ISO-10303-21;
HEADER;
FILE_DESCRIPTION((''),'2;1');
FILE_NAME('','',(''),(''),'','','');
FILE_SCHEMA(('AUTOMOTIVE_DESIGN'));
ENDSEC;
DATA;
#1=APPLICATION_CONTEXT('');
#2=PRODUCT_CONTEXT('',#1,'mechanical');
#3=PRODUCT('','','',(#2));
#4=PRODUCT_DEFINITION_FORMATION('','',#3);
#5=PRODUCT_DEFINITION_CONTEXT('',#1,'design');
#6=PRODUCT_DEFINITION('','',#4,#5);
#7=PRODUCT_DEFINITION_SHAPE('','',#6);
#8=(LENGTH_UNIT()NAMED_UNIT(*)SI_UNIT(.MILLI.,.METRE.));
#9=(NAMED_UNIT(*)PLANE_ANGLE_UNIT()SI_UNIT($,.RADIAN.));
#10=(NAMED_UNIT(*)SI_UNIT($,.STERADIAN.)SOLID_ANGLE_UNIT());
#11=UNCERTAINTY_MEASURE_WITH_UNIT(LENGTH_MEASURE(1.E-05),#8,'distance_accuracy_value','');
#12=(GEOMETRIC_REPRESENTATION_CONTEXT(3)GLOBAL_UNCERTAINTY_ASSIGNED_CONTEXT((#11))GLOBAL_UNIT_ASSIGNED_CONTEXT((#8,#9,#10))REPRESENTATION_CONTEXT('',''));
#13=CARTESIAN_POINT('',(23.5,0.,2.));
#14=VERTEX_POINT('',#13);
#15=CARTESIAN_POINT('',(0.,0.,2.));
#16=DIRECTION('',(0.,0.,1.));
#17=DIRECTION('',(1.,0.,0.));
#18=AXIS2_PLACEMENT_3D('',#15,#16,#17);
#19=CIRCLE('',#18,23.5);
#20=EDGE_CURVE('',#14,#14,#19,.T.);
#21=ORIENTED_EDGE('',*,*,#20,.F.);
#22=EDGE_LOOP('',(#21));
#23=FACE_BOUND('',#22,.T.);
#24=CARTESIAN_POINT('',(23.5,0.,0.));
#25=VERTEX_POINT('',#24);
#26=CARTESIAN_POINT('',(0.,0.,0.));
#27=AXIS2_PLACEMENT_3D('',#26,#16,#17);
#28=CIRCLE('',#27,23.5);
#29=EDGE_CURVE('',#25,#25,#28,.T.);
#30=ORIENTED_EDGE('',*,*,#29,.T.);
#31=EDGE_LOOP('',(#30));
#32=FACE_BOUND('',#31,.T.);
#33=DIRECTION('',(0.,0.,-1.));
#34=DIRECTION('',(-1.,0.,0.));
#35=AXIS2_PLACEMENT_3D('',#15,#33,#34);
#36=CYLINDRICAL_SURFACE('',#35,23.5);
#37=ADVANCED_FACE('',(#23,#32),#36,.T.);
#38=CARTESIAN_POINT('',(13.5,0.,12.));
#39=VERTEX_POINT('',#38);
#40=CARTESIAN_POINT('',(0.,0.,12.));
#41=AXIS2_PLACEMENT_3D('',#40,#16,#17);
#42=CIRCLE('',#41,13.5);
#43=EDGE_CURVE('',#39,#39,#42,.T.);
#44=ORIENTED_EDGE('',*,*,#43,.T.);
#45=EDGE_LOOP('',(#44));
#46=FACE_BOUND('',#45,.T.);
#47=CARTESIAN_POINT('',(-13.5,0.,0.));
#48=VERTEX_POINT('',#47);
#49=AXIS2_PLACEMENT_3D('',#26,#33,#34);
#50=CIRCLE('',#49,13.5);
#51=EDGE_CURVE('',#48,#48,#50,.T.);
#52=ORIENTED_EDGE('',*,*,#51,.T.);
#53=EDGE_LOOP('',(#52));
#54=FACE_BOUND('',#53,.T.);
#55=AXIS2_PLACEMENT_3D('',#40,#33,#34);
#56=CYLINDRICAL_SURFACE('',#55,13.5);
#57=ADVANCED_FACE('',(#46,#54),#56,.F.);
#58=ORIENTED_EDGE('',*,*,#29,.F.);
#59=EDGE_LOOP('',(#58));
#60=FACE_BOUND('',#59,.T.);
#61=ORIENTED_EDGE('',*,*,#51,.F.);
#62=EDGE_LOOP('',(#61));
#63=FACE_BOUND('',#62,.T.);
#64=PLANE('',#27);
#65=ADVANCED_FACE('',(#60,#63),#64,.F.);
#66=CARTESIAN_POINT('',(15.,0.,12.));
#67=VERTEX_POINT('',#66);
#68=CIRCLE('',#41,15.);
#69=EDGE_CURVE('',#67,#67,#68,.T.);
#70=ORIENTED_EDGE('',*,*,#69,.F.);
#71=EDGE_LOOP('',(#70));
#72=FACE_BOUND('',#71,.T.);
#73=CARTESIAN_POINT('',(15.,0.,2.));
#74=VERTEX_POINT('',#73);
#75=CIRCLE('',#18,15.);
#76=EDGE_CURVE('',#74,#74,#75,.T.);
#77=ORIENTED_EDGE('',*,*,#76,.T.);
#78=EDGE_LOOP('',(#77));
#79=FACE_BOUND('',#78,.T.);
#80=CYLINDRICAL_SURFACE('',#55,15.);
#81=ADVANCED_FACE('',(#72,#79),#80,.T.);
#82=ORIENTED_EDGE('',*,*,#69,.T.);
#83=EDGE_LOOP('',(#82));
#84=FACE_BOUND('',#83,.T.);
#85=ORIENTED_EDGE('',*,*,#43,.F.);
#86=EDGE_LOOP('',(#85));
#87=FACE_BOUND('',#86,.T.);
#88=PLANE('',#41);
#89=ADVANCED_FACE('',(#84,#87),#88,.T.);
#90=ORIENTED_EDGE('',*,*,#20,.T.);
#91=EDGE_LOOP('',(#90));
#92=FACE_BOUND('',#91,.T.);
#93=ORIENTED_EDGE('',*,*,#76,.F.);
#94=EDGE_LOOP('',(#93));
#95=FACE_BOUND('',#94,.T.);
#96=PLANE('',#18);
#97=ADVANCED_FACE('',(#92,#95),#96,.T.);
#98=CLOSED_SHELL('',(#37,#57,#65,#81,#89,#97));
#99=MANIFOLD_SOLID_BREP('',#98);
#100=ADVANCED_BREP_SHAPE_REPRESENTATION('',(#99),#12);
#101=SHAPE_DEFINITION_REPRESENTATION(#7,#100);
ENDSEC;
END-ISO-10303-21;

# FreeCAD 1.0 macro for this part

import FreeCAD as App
import Part
import Sketcher

doc = App.newDocument("Part")
params = doc.addObject("Spreadsheet::Sheet", "Params")
for row, (alias, value) in enumerate([
    ("sketch1_diameter", "47 mm"),
    ("pad1_length", "2 mm"),
    ("sketch2_diameter", "30 mm"),
    ("sketch2_diameter2", "27 mm"),
    ("pad2_length", "10 mm"),
    ("sketch3_diameter", "27 mm"),
    ("pocket1_length", "10 mm"),
], start=1):
    params.set(f"A{row}", alias)
    params.set(f"B{row}", "=" + value)
    params.setAlias(f"B{row}", alias)

body = doc.addObject("PartDesign::Body", "Body")

# Sketch on XY plane
sketch1 = doc.addObject("Sketcher::SketchObject", "Sketch")
body.addObject(sketch1)
sketch1.AttachmentSupport = (doc.XY_Plane, [""])
sketch1.MapMode = "FlatFace"
sketch1.addGeometry(Part.Circle(App.Vector(0, 0, 0), App.Vector(0, 0, 1), 24), False)
sketch1.addConstraint(Sketcher.Constraint("Coincident", 0, 3, -1, 1))
sketch1.addConstraint(Sketcher.Constraint("Diameter", 0, 47.0))
sketch1.setExpression("Constraints[1]", "Params.sketch1_diameter")
pad1 = doc.addObject("PartDesign::Pad", "Pad")
body.addObject(pad1)
pad1.Profile = sketch1
pad1.setExpression("Length", "Params.pad1_length")

# Sketch on XY plane
sketch2 = doc.addObject("Sketcher::SketchObject", "Sketch001")
body.addObject(sketch2)
sketch2.AttachmentSupport = (doc.XY_Plane, [""])
sketch2.MapMode = "FlatFace"
sketch2.AttachmentOffset = App.Placement(App.Vector(0, 0, 2), App.Rotation())
sketch2.addGeometry(Part.Circle(App.Vector(0, 0, 0), App.Vector(0, 0, 1), 15), False)
sketch2.addGeometry(Part.Circle(App.Vector(0, 0, 0), App.Vector(0, 0, 1), 14), False)
sketch2.addConstraint(Sketcher.Constraint("Coincident", 0, 3, -1, 1))
sketch2.addConstraint(Sketcher.Constraint("Coincident", 1, 3, -1, 1))
sketch2.addConstraint(Sketcher.Constraint("Diameter", 0, 30.0))
sketch2.addConstraint(Sketcher.Constraint("Diameter", 1, 27.0))
sketch2.setExpression("Constraints[2]", "Params.sketch2_diameter")
sketch2.setExpression("Constraints[3]", "Params.sketch2_diameter2")
pad2 = doc.addObject("PartDesign::Pad", "Pad001")
body.addObject(pad2)
pad2.Profile = sketch2
pad2.setExpression("Length", "Params.pad2_length")

# Sketch on XY plane
sketch3 = doc.addObject("Sketcher::SketchObject", "Sketch002")
body.addObject(sketch3)
sketch3.AttachmentSupport = (doc.XY_Plane, [""])
sketch3.MapMode = "FlatFace"
sketch3.addGeometry(Part.Circle(App.Vector(0, 0, 0), App.Vector(0, 0, 1), 14), False)
sketch3.addConstraint(Sketcher.Constraint("Coincident", 0, 3, -1, 1))
sketch3.addConstraint(Sketcher.Constraint("Diameter", 0, 27.0))
sketch3.setExpression("Constraints[1]", "Params.sketch3_diameter")
pocket1 = doc.addObject("PartDesign::Pocket", "Pocket")
body.addObject(pocket1)
pocket1.Profile = sketch3
pocket1.setExpression("Length", "Params.pocket1_length")
pocket1.Reversed = True

doc.recompute()
